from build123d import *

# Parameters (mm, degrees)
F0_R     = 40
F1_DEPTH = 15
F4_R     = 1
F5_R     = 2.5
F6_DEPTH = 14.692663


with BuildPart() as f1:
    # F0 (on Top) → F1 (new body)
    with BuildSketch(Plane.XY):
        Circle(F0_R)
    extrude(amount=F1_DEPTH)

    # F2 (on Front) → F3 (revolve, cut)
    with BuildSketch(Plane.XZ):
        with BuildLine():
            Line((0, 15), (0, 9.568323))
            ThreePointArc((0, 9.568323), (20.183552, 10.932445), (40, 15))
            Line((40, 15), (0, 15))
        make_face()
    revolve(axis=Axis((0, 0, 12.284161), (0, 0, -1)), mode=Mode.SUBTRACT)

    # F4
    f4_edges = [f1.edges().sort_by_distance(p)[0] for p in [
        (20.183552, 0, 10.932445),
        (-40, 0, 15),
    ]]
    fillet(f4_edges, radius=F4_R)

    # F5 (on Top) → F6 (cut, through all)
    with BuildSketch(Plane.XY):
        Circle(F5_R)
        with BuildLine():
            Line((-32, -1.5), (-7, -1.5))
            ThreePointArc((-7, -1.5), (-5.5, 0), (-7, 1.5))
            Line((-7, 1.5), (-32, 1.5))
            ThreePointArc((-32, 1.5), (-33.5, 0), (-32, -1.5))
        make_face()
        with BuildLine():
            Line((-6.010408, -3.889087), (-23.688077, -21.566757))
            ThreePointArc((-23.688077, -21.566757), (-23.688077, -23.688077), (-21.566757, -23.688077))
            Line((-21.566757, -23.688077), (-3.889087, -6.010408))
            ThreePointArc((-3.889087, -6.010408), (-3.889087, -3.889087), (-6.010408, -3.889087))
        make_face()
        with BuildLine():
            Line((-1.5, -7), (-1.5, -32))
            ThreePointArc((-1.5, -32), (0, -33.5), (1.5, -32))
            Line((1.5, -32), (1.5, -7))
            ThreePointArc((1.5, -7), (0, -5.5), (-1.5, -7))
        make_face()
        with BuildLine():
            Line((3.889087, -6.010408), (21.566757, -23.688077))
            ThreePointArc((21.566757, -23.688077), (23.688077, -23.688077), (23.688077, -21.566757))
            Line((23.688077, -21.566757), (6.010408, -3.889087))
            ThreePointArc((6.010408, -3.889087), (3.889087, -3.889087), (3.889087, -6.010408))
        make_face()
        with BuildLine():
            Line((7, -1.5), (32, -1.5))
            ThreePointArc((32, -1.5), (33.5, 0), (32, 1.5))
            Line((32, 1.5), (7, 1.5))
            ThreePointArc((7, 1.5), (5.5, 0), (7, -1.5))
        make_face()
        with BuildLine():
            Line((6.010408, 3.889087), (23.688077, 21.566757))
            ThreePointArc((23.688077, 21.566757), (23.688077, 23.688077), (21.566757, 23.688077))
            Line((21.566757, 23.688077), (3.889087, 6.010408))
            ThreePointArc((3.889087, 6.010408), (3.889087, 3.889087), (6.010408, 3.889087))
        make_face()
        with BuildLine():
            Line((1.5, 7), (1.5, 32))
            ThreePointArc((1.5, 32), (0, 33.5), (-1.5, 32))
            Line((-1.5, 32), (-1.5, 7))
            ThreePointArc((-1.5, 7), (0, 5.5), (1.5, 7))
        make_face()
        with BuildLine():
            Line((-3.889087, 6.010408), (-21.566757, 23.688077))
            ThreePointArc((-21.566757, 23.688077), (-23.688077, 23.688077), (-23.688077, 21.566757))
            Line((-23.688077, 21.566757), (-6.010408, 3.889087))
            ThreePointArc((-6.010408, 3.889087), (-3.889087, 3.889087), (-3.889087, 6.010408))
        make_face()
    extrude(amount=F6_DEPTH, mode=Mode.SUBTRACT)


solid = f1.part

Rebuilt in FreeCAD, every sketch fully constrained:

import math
import FreeCAD as App
import Part
import Sketcher
from FreeCAD import Vector


def edges_at(feature, points):
    """Names of the edges that pass closest to the given points."""
    edges = feature.Shape.Edges
    near = lambda p: min(range(len(edges)), key=lambda i: edges[i].distToShape(Part.Vertex(*p))[0])
    return sorted({f"Edge{near(p) + 1}" for p in points})

doc = App.newDocument("Part")
body = doc.addObject("PartDesign::Body", "Body")

# Sketch on XY plane
sketch1 = body.newObject("Sketcher::SketchObject", "Sketch")
sketch1.AttachmentSupport = (doc.getObject("XY_Plane"), [""])
sketch1.MapMode = "FlatFace"
sketch1.addGeometry(Part.Circle(Vector(0, 0, 0), Vector(0, 0, 1), 40), False)
sketch1.addConstraint([
    Sketcher.Constraint("Coincident", 0, 3, -1, 1),
    Sketcher.Constraint("Diameter", 0, 80.0),
])
pad1 = body.newObject("PartDesign::Pad", "Pad")
pad1.Profile = sketch1
pad1.Length = 15

# Sketch on XZ plane
sketch2 = body.newObject("Sketcher::SketchObject", "Sketch001")
sketch2.AttachmentSupport = (doc.getObject("XZ_Plane"), [""])
sketch2.MapMode = "FlatFace"
sketch2.addGeometry([
    Part.LineSegment(Vector(0, 15, 0), Vector(0, 9.568323, 0)),
    Part.ArcOfCircle(Part.Circle(Vector(0, 159.568326, 0), Vector(0, 0, 1), 150.000003), math.radians(-90), math.radians(-74.53399)),
    Part.LineSegment(Vector(40, 15, 0), Vector(0, 15, 0)),
], False)
sketch2.addConstraint([
    Sketcher.Constraint("Coincident", 0, 2, 1, 1),
    Sketcher.Constraint("Coincident", 1, 2, 2, 1),
    Sketcher.Constraint("Coincident", 2, 2, 0, 1),
    Sketcher.Constraint("Vertical", 0),
    Sketcher.Constraint("Horizontal", 2),
    Sketcher.Constraint("PointOnObject", 1, 3, -2),
    Sketcher.Constraint("PointOnObject", 0, 2, -2),
    Sketcher.Constraint("DistanceX", 2, 2, 2, 1, 40.0),
    Sketcher.Constraint("DistanceY", -1, 1, 1, 2, 15.0),
    Sketcher.Constraint("Radius", 1, 150.000003),
])
groove = body.newObject("PartDesign::Groove", "Groove")
groove.Profile = sketch2
groove.ReferenceAxis = (sketch2, ["V_Axis"])
groove.Angle = 360
doc.recompute()

fillet = body.newObject("PartDesign::Fillet", "Fillet")
fillet.Base = (groove, edges_at(groove, [(20.184, 0, 10.932), (-40, 0, 15)]))
fillet.Radius = 1

# Sketch on XY plane
sketch3 = body.newObject("Sketcher::SketchObject", "Sketch002")
sketch3.AttachmentSupport = (doc.getObject("XY_Plane"), [""])
sketch3.MapMode = "FlatFace"
sketch3.addGeometry([
    Part.Circle(Vector(0, 0, 0), Vector(0, 0, 1), 2.5),  # 0
    Part.LineSegment(Vector(-32, -1.5, 0), Vector(-7, -1.5, 0)),  # 1
    Part.ArcOfCircle(Part.Circle(Vector(-7, 0, 0), Vector(0, 0, 1), 1.5), math.radians(-90), math.radians(90)),  # 2
    Part.LineSegment(Vector(-7, 1.5, 0), Vector(-32, 1.5, 0)),  # 3
    Part.ArcOfCircle(Part.Circle(Vector(-32, 0, 0), Vector(0, 0, 1), 1.5), math.radians(90), math.radians(270)),  # 4
    Part.LineSegment(Vector(-6.010408, -3.889087, 0), Vector(-23.688077, -21.566757, 0)),  # 5
    Part.ArcOfCircle(Part.Circle(Vector(-22.627417, -22.627417, 0), Vector(0, 0, 1), 1.5), math.radians(135), math.radians(315)),  # 6
    Part.LineSegment(Vector(-21.566757, -23.688077, 0), Vector(-3.889087, -6.010408, 0)),  # 7
    Part.ArcOfCircle(Part.Circle(Vector(-4.949747, -4.949747, 0), Vector(0, 0, 1), 1.5), math.radians(-45), math.radians(135)),  # 8
    Part.LineSegment(Vector(-1.5, -7, 0), Vector(-1.5, -32, 0)),  # 9
    Part.ArcOfCircle(Part.Circle(Vector(0, -32, 0), Vector(0, 0, 1), 1.5), math.radians(180), math.radians(360)),  # 10
    Part.LineSegment(Vector(1.5, -32, 0), Vector(1.5, -7, 0)),  # 11
    Part.ArcOfCircle(Part.Circle(Vector(0, -7, 0), Vector(0, 0, 1), 1.5), math.radians(0), math.radians(180)),  # 12
    Part.LineSegment(Vector(3.889087, -6.010408, 0), Vector(21.566757, -23.688077, 0)),  # 13
    Part.ArcOfCircle(Part.Circle(Vector(22.627417, -22.627417, 0), Vector(0, 0, 1), 1.5), math.radians(-135), math.radians(45)),  # 14
    Part.LineSegment(Vector(23.688077, -21.566757, 0), Vector(6.010408, -3.889087, 0)),  # 15
    Part.ArcOfCircle(Part.Circle(Vector(4.949747, -4.949747, 0), Vector(0, 0, 1), 1.5), math.radians(45), math.radians(225)),  # 16
    Part.LineSegment(Vector(7, -1.5, 0), Vector(32, -1.5, 0)),  # 17
    Part.ArcOfCircle(Part.Circle(Vector(32, 0, 0), Vector(0, 0, 1), 1.5), math.radians(-90), math.radians(90)),  # 18
    Part.LineSegment(Vector(32, 1.5, 0), Vector(7, 1.5, 0)),  # 19
    Part.ArcOfCircle(Part.Circle(Vector(7, 0, 0), Vector(0, 0, 1), 1.5), math.radians(90), math.radians(270)),  # 20
    Part.LineSegment(Vector(6.010408, 3.889087, 0), Vector(23.688077, 21.566757, 0)),  # 21
    Part.ArcOfCircle(Part.Circle(Vector(22.627417, 22.627417, 0), Vector(0, 0, 1), 1.5), math.radians(-45), math.radians(135)),  # 22
    Part.LineSegment(Vector(21.566757, 23.688077, 0), Vector(3.889087, 6.010408, 0)),  # 23
    Part.ArcOfCircle(Part.Circle(Vector(4.949747, 4.949747, 0), Vector(0, 0, 1), 1.5), math.radians(135), math.radians(315)),  # 24
    Part.LineSegment(Vector(1.5, 7, 0), Vector(1.5, 32, 0)),  # 25
    Part.ArcOfCircle(Part.Circle(Vector(0, 32, 0), Vector(0, 0, 1), 1.5), math.radians(0), math.radians(180)),  # 26
    Part.LineSegment(Vector(-1.5, 32, 0), Vector(-1.5, 7, 0)),  # 27
    Part.ArcOfCircle(Part.Circle(Vector(0, 7, 0), Vector(0, 0, 1), 1.5), math.radians(180), math.radians(360)),  # 28
    Part.LineSegment(Vector(-3.889087, 6.010408, 0), Vector(-21.566757, 23.688077, 0)),  # 29
    Part.ArcOfCircle(Part.Circle(Vector(-22.627417, 22.627417, 0), Vector(0, 0, 1), 1.5), math.radians(45), math.radians(225)),  # 30
    Part.LineSegment(Vector(-23.688077, 21.566757, 0), Vector(-6.010408, 3.889087, 0)),  # 31
    Part.ArcOfCircle(Part.Circle(Vector(-4.949747, 4.949747, 0), Vector(0, 0, 1), 1.5), math.radians(-135), math.radians(45)),  # 32
], False)
sketch3.addConstraint([
    Sketcher.Constraint("Tangent", 1, 2, 2, 1),
    Sketcher.Constraint("Tangent", 2, 2, 3, 1),
    Sketcher.Constraint("Tangent", 3, 2, 4, 1),
    Sketcher.Constraint("Tangent", 4, 2, 1, 1),
    Sketcher.Constraint("Tangent", 5, 2, 6, 1),
    Sketcher.Constraint("Tangent", 6, 2, 7, 1),
    Sketcher.Constraint("Tangent", 7, 2, 8, 1),
    Sketcher.Constraint("Tangent", 8, 2, 5, 1),
    Sketcher.Constraint("Tangent", 9, 2, 10, 1),
    Sketcher.Constraint("Tangent", 10, 2, 11, 1),
    Sketcher.Constraint("Tangent", 11, 2, 12, 1),
    Sketcher.Constraint("Tangent", 12, 2, 9, 1),
    Sketcher.Constraint("Tangent", 13, 2, 14, 1),
    Sketcher.Constraint("Tangent", 14, 2, 15, 1),
    Sketcher.Constraint("Tangent", 15, 2, 16, 1),
    Sketcher.Constraint("Tangent", 16, 2, 13, 1),
    Sketcher.Constraint("Tangent", 17, 2, 18, 1),
    Sketcher.Constraint("Tangent", 18, 2, 19, 1),
    Sketcher.Constraint("Tangent", 19, 2, 20, 1),
    Sketcher.Constraint("Tangent", 20, 2, 17, 1),
    Sketcher.Constraint("Tangent", 21, 2, 22, 1),
    Sketcher.Constraint("Tangent", 22, 2, 23, 1),
    Sketcher.Constraint("Tangent", 23, 2, 24, 1),
    Sketcher.Constraint("Tangent", 24, 2, 21, 1),
    Sketcher.Constraint("Tangent", 25, 2, 26, 1),
    Sketcher.Constraint("Tangent", 26, 2, 27, 1),
    Sketcher.Constraint("Tangent", 27, 2, 28, 1),
    Sketcher.Constraint("Tangent", 28, 2, 25, 1),
    Sketcher.Constraint("Tangent", 29, 2, 30, 1),
    Sketcher.Constraint("Tangent", 30, 2, 31, 1),
    Sketcher.Constraint("Tangent", 31, 2, 32, 1),
    Sketcher.Constraint("Tangent", 32, 2, 29, 1),
    Sketcher.Constraint("Horizontal", 1),
    Sketcher.Constraint("Horizontal", 3),
    Sketcher.Constraint("Vertical", 9),
    Sketcher.Constraint("Vertical", 11),
    Sketcher.Constraint("Horizontal", 17),
    Sketcher.Constraint("Horizontal", 19),
    Sketcher.Constraint("Vertical", 25),
    Sketcher.Constraint("Vertical", 27),
    Sketcher.Constraint("Coincident", 0, 3, -1, 1),
    Sketcher.Constraint("Equal", 4, 6),
    Sketcher.Constraint("Equal", 6, 8),
    Sketcher.Constraint("Equal", 8, 10),
    Sketcher.Constraint("Equal", 12, 14),
    Sketcher.Constraint("Equal", 14, 16),
    Sketcher.Constraint("Equal", 16, 18),
    Sketcher.Constraint("Equal", 20, 22),
    Sketcher.Constraint("Equal", 22, 24),
    Sketcher.Constraint("Equal", 24, 26),
    Sketcher.Constraint("Equal", 28, 30),
    Sketcher.Constraint("Equal", 30, 32),
    Sketcher.Constraint("Symmetric", 4, 3, 18, 3, -1, 1),
    Sketcher.Constraint("Symmetric", 6, 3, 22, 3, -1, 1),
    Sketcher.Constraint("Symmetric", 8, 3, 24, 3, -1, 1),
    Sketcher.Constraint("Symmetric", 10, 3, 26, 3, -1, 1),
    Sketcher.Constraint("Symmetric", 14, 3, 30, 3, -1, 1),
    Sketcher.Constraint("Symmetric", 16, 3, 32, 3, -1, 1),
    Sketcher.Constraint("Symmetric", 6, 3, 14, 3, -2),
    Sketcher.Constraint("Symmetric", 8, 3, 16, 3, -2),
    Sketcher.Constraint("Symmetric", 2, 3, 20, 3, -2),
    Sketcher.Constraint("Symmetric", 12, 3, 28, 3, -1),
    Sketcher.Constraint("Perpendicular", 7, 13),
    Sketcher.Constraint("Equal", 19, 9),
    Sketcher.Constraint("Diameter", 0, 5.0),
    Sketcher.Constraint("Radius", 2, 1.5),
    Sketcher.Constraint("DistanceX", 1, 1, 1, 2, 25.0),
    Sketcher.Constraint("Distance", 5, 25.0),
    Sketcher.Constraint("DistanceX", 2, 3, -1, 1, 7.0),
    Sketcher.Constraint("DistanceY", 10, 3, -1, 1, 32.0),
    Sketcher.Constraint("DistanceX", 6, 3, -1, 1, 22.627417),
    Sketcher.Constraint("DistanceY", 6, 3, -1, 1, 22.627417),
])
pocket1 = body.newObject("PartDesign::Pocket", "Pocket")
pocket1.Profile = sketch3
pocket1.Type = "ThroughAll"
pocket1.Reversed = True

doc.recompute()
